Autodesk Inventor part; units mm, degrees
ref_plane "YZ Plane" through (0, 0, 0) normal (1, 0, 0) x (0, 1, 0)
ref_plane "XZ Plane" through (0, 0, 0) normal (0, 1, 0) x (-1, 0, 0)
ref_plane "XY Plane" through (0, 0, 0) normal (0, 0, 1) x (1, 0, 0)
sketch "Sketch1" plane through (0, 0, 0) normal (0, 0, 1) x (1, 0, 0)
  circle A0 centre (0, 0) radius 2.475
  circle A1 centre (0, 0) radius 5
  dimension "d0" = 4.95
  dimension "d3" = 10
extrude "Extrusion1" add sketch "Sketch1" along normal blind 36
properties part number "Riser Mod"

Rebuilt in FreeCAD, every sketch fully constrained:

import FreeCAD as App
import Part
import Sketcher

V = App.Vector
Q = App.Units.Quantity

doc = App.newDocument("Part")
params = doc.addObject("Spreadsheet::Sheet", "Params")
for row, (alias, value) in enumerate([
    ("sketch1_diameter", "10 mm"),
    ("sketch1_diameter2", "4.95 mm"),
    ("pad1_length", "36 mm"),
], start=1):
    params.set(f"A{row}", alias)
    params.set(f"B{row}", "=" + value)
    params.setAlias(f"B{row}", alias)

body = doc.addObject("PartDesign::Body", "Body")

# Sketch on XY plane
sketch1 = body.newObject("Sketcher::SketchObject", "Sketch")
sketch1.AttachmentSupport = (doc.getObject("XY_Plane"), [""])
sketch1.MapMode = "FlatFace"
sketch1.addGeometry(Part.Circle(V(0, 0, 0), V(0, 0, 1), 5), False)
sketch1.addGeometry(Part.Circle(V(0, 0, 0), V(0, 0, 1), 2.475), False)
sketch1.addConstraint(Sketcher.Constraint("Coincident", 0, 3, -1, 1))
sketch1.addConstraint(Sketcher.Constraint("Coincident", 1, 3, -1, 1))
sketch1.addConstraint(Sketcher.Constraint("Diameter", 0, Q("10 mm")))
sketch1.addConstraint(Sketcher.Constraint("Diameter", 1, Q("4.95 mm")))
sketch1.setExpression("Constraints[2]", "Params.sketch1_diameter")
sketch1.setExpression("Constraints[3]", "Params.sketch1_diameter2")
pad1 = body.newObject("PartDesign::Pad", "Pad")
pad1.Profile = sketch1
pad1.setExpression("Length", "Params.pad1_length")

doc.recompute()
